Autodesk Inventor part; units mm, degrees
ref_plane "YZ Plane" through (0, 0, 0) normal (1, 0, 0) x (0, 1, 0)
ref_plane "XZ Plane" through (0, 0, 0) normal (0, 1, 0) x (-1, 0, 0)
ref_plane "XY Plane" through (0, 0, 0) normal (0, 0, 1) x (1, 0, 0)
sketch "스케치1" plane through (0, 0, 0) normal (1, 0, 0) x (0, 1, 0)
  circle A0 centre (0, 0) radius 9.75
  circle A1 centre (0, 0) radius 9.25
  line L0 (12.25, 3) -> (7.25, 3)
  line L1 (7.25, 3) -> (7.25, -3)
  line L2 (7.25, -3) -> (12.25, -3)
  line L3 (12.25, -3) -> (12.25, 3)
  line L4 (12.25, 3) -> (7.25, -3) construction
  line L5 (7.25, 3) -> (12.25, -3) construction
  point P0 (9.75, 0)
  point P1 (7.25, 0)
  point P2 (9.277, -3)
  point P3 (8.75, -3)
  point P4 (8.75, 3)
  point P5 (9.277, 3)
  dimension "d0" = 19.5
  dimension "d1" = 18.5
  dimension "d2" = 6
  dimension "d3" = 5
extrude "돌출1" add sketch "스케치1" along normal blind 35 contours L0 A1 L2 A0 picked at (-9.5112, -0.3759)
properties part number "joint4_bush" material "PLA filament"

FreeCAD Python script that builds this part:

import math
import FreeCAD as App
import Part
import Sketcher

V = App.Vector
Q = App.Units.Quantity

doc = App.newDocument("Part")
body = doc.addObject("PartDesign::Body", "Body")

sketch1 = body.newObject("Sketcher::SketchObject", "Sketch")
sketch1.AttachmentSupport = (doc.getObject("YZ_Plane"), [""])
sketch1.MapMode = "FlatFace"
sketch1.addGeometry([
    Part.LineSegment(V(8.75, 3, 0), V(9.276988, 3, 0)),
    Part.ArcOfCircle(Part.Circle(V(0, 0, 0), V(0, 0, 1), 9.75), math.radians(17.920213), math.radians(342.079787)),
    Part.LineSegment(V(9.276988, -3, 0), V(8.75, -3, 0)),
    Part.ArcOfCircle(Part.Circle(V(0, 0, 0), V(0, 0, 1), 9.25), math.radians(18.924644), math.radians(341.075356)),
], False)
sketch1.addConstraint([
    Sketcher.Constraint("Coincident", 0, 2, 1, 1),
    Sketcher.Constraint("Coincident", 1, 2, 2, 1),
    Sketcher.Constraint("Coincident", 2, 2, 3, 2),
    Sketcher.Constraint("Coincident", 3, 1, 0, 1),
    Sketcher.Constraint("Horizontal", 0),
    Sketcher.Constraint("Horizontal", 2),
    Sketcher.Constraint("Coincident", 1, 3, -1, 1),
    Sketcher.Constraint("Coincident", 3, 3, -1, 1),
    Sketcher.Constraint("Vertical", 0, 2, 1, 2),
    Sketcher.Constraint("Radius", 1, Q("9.75 mm")),
    Sketcher.Constraint("Radius", 3, Q("9.25 mm")),
    Sketcher.Constraint("DistanceY", 1, 2, 0, 2, Q("6 mm")),
])
pad1 = body.newObject("PartDesign::Pad", "Pad")
pad1.Profile = sketch1
pad1.Length = 35

doc.recompute()
